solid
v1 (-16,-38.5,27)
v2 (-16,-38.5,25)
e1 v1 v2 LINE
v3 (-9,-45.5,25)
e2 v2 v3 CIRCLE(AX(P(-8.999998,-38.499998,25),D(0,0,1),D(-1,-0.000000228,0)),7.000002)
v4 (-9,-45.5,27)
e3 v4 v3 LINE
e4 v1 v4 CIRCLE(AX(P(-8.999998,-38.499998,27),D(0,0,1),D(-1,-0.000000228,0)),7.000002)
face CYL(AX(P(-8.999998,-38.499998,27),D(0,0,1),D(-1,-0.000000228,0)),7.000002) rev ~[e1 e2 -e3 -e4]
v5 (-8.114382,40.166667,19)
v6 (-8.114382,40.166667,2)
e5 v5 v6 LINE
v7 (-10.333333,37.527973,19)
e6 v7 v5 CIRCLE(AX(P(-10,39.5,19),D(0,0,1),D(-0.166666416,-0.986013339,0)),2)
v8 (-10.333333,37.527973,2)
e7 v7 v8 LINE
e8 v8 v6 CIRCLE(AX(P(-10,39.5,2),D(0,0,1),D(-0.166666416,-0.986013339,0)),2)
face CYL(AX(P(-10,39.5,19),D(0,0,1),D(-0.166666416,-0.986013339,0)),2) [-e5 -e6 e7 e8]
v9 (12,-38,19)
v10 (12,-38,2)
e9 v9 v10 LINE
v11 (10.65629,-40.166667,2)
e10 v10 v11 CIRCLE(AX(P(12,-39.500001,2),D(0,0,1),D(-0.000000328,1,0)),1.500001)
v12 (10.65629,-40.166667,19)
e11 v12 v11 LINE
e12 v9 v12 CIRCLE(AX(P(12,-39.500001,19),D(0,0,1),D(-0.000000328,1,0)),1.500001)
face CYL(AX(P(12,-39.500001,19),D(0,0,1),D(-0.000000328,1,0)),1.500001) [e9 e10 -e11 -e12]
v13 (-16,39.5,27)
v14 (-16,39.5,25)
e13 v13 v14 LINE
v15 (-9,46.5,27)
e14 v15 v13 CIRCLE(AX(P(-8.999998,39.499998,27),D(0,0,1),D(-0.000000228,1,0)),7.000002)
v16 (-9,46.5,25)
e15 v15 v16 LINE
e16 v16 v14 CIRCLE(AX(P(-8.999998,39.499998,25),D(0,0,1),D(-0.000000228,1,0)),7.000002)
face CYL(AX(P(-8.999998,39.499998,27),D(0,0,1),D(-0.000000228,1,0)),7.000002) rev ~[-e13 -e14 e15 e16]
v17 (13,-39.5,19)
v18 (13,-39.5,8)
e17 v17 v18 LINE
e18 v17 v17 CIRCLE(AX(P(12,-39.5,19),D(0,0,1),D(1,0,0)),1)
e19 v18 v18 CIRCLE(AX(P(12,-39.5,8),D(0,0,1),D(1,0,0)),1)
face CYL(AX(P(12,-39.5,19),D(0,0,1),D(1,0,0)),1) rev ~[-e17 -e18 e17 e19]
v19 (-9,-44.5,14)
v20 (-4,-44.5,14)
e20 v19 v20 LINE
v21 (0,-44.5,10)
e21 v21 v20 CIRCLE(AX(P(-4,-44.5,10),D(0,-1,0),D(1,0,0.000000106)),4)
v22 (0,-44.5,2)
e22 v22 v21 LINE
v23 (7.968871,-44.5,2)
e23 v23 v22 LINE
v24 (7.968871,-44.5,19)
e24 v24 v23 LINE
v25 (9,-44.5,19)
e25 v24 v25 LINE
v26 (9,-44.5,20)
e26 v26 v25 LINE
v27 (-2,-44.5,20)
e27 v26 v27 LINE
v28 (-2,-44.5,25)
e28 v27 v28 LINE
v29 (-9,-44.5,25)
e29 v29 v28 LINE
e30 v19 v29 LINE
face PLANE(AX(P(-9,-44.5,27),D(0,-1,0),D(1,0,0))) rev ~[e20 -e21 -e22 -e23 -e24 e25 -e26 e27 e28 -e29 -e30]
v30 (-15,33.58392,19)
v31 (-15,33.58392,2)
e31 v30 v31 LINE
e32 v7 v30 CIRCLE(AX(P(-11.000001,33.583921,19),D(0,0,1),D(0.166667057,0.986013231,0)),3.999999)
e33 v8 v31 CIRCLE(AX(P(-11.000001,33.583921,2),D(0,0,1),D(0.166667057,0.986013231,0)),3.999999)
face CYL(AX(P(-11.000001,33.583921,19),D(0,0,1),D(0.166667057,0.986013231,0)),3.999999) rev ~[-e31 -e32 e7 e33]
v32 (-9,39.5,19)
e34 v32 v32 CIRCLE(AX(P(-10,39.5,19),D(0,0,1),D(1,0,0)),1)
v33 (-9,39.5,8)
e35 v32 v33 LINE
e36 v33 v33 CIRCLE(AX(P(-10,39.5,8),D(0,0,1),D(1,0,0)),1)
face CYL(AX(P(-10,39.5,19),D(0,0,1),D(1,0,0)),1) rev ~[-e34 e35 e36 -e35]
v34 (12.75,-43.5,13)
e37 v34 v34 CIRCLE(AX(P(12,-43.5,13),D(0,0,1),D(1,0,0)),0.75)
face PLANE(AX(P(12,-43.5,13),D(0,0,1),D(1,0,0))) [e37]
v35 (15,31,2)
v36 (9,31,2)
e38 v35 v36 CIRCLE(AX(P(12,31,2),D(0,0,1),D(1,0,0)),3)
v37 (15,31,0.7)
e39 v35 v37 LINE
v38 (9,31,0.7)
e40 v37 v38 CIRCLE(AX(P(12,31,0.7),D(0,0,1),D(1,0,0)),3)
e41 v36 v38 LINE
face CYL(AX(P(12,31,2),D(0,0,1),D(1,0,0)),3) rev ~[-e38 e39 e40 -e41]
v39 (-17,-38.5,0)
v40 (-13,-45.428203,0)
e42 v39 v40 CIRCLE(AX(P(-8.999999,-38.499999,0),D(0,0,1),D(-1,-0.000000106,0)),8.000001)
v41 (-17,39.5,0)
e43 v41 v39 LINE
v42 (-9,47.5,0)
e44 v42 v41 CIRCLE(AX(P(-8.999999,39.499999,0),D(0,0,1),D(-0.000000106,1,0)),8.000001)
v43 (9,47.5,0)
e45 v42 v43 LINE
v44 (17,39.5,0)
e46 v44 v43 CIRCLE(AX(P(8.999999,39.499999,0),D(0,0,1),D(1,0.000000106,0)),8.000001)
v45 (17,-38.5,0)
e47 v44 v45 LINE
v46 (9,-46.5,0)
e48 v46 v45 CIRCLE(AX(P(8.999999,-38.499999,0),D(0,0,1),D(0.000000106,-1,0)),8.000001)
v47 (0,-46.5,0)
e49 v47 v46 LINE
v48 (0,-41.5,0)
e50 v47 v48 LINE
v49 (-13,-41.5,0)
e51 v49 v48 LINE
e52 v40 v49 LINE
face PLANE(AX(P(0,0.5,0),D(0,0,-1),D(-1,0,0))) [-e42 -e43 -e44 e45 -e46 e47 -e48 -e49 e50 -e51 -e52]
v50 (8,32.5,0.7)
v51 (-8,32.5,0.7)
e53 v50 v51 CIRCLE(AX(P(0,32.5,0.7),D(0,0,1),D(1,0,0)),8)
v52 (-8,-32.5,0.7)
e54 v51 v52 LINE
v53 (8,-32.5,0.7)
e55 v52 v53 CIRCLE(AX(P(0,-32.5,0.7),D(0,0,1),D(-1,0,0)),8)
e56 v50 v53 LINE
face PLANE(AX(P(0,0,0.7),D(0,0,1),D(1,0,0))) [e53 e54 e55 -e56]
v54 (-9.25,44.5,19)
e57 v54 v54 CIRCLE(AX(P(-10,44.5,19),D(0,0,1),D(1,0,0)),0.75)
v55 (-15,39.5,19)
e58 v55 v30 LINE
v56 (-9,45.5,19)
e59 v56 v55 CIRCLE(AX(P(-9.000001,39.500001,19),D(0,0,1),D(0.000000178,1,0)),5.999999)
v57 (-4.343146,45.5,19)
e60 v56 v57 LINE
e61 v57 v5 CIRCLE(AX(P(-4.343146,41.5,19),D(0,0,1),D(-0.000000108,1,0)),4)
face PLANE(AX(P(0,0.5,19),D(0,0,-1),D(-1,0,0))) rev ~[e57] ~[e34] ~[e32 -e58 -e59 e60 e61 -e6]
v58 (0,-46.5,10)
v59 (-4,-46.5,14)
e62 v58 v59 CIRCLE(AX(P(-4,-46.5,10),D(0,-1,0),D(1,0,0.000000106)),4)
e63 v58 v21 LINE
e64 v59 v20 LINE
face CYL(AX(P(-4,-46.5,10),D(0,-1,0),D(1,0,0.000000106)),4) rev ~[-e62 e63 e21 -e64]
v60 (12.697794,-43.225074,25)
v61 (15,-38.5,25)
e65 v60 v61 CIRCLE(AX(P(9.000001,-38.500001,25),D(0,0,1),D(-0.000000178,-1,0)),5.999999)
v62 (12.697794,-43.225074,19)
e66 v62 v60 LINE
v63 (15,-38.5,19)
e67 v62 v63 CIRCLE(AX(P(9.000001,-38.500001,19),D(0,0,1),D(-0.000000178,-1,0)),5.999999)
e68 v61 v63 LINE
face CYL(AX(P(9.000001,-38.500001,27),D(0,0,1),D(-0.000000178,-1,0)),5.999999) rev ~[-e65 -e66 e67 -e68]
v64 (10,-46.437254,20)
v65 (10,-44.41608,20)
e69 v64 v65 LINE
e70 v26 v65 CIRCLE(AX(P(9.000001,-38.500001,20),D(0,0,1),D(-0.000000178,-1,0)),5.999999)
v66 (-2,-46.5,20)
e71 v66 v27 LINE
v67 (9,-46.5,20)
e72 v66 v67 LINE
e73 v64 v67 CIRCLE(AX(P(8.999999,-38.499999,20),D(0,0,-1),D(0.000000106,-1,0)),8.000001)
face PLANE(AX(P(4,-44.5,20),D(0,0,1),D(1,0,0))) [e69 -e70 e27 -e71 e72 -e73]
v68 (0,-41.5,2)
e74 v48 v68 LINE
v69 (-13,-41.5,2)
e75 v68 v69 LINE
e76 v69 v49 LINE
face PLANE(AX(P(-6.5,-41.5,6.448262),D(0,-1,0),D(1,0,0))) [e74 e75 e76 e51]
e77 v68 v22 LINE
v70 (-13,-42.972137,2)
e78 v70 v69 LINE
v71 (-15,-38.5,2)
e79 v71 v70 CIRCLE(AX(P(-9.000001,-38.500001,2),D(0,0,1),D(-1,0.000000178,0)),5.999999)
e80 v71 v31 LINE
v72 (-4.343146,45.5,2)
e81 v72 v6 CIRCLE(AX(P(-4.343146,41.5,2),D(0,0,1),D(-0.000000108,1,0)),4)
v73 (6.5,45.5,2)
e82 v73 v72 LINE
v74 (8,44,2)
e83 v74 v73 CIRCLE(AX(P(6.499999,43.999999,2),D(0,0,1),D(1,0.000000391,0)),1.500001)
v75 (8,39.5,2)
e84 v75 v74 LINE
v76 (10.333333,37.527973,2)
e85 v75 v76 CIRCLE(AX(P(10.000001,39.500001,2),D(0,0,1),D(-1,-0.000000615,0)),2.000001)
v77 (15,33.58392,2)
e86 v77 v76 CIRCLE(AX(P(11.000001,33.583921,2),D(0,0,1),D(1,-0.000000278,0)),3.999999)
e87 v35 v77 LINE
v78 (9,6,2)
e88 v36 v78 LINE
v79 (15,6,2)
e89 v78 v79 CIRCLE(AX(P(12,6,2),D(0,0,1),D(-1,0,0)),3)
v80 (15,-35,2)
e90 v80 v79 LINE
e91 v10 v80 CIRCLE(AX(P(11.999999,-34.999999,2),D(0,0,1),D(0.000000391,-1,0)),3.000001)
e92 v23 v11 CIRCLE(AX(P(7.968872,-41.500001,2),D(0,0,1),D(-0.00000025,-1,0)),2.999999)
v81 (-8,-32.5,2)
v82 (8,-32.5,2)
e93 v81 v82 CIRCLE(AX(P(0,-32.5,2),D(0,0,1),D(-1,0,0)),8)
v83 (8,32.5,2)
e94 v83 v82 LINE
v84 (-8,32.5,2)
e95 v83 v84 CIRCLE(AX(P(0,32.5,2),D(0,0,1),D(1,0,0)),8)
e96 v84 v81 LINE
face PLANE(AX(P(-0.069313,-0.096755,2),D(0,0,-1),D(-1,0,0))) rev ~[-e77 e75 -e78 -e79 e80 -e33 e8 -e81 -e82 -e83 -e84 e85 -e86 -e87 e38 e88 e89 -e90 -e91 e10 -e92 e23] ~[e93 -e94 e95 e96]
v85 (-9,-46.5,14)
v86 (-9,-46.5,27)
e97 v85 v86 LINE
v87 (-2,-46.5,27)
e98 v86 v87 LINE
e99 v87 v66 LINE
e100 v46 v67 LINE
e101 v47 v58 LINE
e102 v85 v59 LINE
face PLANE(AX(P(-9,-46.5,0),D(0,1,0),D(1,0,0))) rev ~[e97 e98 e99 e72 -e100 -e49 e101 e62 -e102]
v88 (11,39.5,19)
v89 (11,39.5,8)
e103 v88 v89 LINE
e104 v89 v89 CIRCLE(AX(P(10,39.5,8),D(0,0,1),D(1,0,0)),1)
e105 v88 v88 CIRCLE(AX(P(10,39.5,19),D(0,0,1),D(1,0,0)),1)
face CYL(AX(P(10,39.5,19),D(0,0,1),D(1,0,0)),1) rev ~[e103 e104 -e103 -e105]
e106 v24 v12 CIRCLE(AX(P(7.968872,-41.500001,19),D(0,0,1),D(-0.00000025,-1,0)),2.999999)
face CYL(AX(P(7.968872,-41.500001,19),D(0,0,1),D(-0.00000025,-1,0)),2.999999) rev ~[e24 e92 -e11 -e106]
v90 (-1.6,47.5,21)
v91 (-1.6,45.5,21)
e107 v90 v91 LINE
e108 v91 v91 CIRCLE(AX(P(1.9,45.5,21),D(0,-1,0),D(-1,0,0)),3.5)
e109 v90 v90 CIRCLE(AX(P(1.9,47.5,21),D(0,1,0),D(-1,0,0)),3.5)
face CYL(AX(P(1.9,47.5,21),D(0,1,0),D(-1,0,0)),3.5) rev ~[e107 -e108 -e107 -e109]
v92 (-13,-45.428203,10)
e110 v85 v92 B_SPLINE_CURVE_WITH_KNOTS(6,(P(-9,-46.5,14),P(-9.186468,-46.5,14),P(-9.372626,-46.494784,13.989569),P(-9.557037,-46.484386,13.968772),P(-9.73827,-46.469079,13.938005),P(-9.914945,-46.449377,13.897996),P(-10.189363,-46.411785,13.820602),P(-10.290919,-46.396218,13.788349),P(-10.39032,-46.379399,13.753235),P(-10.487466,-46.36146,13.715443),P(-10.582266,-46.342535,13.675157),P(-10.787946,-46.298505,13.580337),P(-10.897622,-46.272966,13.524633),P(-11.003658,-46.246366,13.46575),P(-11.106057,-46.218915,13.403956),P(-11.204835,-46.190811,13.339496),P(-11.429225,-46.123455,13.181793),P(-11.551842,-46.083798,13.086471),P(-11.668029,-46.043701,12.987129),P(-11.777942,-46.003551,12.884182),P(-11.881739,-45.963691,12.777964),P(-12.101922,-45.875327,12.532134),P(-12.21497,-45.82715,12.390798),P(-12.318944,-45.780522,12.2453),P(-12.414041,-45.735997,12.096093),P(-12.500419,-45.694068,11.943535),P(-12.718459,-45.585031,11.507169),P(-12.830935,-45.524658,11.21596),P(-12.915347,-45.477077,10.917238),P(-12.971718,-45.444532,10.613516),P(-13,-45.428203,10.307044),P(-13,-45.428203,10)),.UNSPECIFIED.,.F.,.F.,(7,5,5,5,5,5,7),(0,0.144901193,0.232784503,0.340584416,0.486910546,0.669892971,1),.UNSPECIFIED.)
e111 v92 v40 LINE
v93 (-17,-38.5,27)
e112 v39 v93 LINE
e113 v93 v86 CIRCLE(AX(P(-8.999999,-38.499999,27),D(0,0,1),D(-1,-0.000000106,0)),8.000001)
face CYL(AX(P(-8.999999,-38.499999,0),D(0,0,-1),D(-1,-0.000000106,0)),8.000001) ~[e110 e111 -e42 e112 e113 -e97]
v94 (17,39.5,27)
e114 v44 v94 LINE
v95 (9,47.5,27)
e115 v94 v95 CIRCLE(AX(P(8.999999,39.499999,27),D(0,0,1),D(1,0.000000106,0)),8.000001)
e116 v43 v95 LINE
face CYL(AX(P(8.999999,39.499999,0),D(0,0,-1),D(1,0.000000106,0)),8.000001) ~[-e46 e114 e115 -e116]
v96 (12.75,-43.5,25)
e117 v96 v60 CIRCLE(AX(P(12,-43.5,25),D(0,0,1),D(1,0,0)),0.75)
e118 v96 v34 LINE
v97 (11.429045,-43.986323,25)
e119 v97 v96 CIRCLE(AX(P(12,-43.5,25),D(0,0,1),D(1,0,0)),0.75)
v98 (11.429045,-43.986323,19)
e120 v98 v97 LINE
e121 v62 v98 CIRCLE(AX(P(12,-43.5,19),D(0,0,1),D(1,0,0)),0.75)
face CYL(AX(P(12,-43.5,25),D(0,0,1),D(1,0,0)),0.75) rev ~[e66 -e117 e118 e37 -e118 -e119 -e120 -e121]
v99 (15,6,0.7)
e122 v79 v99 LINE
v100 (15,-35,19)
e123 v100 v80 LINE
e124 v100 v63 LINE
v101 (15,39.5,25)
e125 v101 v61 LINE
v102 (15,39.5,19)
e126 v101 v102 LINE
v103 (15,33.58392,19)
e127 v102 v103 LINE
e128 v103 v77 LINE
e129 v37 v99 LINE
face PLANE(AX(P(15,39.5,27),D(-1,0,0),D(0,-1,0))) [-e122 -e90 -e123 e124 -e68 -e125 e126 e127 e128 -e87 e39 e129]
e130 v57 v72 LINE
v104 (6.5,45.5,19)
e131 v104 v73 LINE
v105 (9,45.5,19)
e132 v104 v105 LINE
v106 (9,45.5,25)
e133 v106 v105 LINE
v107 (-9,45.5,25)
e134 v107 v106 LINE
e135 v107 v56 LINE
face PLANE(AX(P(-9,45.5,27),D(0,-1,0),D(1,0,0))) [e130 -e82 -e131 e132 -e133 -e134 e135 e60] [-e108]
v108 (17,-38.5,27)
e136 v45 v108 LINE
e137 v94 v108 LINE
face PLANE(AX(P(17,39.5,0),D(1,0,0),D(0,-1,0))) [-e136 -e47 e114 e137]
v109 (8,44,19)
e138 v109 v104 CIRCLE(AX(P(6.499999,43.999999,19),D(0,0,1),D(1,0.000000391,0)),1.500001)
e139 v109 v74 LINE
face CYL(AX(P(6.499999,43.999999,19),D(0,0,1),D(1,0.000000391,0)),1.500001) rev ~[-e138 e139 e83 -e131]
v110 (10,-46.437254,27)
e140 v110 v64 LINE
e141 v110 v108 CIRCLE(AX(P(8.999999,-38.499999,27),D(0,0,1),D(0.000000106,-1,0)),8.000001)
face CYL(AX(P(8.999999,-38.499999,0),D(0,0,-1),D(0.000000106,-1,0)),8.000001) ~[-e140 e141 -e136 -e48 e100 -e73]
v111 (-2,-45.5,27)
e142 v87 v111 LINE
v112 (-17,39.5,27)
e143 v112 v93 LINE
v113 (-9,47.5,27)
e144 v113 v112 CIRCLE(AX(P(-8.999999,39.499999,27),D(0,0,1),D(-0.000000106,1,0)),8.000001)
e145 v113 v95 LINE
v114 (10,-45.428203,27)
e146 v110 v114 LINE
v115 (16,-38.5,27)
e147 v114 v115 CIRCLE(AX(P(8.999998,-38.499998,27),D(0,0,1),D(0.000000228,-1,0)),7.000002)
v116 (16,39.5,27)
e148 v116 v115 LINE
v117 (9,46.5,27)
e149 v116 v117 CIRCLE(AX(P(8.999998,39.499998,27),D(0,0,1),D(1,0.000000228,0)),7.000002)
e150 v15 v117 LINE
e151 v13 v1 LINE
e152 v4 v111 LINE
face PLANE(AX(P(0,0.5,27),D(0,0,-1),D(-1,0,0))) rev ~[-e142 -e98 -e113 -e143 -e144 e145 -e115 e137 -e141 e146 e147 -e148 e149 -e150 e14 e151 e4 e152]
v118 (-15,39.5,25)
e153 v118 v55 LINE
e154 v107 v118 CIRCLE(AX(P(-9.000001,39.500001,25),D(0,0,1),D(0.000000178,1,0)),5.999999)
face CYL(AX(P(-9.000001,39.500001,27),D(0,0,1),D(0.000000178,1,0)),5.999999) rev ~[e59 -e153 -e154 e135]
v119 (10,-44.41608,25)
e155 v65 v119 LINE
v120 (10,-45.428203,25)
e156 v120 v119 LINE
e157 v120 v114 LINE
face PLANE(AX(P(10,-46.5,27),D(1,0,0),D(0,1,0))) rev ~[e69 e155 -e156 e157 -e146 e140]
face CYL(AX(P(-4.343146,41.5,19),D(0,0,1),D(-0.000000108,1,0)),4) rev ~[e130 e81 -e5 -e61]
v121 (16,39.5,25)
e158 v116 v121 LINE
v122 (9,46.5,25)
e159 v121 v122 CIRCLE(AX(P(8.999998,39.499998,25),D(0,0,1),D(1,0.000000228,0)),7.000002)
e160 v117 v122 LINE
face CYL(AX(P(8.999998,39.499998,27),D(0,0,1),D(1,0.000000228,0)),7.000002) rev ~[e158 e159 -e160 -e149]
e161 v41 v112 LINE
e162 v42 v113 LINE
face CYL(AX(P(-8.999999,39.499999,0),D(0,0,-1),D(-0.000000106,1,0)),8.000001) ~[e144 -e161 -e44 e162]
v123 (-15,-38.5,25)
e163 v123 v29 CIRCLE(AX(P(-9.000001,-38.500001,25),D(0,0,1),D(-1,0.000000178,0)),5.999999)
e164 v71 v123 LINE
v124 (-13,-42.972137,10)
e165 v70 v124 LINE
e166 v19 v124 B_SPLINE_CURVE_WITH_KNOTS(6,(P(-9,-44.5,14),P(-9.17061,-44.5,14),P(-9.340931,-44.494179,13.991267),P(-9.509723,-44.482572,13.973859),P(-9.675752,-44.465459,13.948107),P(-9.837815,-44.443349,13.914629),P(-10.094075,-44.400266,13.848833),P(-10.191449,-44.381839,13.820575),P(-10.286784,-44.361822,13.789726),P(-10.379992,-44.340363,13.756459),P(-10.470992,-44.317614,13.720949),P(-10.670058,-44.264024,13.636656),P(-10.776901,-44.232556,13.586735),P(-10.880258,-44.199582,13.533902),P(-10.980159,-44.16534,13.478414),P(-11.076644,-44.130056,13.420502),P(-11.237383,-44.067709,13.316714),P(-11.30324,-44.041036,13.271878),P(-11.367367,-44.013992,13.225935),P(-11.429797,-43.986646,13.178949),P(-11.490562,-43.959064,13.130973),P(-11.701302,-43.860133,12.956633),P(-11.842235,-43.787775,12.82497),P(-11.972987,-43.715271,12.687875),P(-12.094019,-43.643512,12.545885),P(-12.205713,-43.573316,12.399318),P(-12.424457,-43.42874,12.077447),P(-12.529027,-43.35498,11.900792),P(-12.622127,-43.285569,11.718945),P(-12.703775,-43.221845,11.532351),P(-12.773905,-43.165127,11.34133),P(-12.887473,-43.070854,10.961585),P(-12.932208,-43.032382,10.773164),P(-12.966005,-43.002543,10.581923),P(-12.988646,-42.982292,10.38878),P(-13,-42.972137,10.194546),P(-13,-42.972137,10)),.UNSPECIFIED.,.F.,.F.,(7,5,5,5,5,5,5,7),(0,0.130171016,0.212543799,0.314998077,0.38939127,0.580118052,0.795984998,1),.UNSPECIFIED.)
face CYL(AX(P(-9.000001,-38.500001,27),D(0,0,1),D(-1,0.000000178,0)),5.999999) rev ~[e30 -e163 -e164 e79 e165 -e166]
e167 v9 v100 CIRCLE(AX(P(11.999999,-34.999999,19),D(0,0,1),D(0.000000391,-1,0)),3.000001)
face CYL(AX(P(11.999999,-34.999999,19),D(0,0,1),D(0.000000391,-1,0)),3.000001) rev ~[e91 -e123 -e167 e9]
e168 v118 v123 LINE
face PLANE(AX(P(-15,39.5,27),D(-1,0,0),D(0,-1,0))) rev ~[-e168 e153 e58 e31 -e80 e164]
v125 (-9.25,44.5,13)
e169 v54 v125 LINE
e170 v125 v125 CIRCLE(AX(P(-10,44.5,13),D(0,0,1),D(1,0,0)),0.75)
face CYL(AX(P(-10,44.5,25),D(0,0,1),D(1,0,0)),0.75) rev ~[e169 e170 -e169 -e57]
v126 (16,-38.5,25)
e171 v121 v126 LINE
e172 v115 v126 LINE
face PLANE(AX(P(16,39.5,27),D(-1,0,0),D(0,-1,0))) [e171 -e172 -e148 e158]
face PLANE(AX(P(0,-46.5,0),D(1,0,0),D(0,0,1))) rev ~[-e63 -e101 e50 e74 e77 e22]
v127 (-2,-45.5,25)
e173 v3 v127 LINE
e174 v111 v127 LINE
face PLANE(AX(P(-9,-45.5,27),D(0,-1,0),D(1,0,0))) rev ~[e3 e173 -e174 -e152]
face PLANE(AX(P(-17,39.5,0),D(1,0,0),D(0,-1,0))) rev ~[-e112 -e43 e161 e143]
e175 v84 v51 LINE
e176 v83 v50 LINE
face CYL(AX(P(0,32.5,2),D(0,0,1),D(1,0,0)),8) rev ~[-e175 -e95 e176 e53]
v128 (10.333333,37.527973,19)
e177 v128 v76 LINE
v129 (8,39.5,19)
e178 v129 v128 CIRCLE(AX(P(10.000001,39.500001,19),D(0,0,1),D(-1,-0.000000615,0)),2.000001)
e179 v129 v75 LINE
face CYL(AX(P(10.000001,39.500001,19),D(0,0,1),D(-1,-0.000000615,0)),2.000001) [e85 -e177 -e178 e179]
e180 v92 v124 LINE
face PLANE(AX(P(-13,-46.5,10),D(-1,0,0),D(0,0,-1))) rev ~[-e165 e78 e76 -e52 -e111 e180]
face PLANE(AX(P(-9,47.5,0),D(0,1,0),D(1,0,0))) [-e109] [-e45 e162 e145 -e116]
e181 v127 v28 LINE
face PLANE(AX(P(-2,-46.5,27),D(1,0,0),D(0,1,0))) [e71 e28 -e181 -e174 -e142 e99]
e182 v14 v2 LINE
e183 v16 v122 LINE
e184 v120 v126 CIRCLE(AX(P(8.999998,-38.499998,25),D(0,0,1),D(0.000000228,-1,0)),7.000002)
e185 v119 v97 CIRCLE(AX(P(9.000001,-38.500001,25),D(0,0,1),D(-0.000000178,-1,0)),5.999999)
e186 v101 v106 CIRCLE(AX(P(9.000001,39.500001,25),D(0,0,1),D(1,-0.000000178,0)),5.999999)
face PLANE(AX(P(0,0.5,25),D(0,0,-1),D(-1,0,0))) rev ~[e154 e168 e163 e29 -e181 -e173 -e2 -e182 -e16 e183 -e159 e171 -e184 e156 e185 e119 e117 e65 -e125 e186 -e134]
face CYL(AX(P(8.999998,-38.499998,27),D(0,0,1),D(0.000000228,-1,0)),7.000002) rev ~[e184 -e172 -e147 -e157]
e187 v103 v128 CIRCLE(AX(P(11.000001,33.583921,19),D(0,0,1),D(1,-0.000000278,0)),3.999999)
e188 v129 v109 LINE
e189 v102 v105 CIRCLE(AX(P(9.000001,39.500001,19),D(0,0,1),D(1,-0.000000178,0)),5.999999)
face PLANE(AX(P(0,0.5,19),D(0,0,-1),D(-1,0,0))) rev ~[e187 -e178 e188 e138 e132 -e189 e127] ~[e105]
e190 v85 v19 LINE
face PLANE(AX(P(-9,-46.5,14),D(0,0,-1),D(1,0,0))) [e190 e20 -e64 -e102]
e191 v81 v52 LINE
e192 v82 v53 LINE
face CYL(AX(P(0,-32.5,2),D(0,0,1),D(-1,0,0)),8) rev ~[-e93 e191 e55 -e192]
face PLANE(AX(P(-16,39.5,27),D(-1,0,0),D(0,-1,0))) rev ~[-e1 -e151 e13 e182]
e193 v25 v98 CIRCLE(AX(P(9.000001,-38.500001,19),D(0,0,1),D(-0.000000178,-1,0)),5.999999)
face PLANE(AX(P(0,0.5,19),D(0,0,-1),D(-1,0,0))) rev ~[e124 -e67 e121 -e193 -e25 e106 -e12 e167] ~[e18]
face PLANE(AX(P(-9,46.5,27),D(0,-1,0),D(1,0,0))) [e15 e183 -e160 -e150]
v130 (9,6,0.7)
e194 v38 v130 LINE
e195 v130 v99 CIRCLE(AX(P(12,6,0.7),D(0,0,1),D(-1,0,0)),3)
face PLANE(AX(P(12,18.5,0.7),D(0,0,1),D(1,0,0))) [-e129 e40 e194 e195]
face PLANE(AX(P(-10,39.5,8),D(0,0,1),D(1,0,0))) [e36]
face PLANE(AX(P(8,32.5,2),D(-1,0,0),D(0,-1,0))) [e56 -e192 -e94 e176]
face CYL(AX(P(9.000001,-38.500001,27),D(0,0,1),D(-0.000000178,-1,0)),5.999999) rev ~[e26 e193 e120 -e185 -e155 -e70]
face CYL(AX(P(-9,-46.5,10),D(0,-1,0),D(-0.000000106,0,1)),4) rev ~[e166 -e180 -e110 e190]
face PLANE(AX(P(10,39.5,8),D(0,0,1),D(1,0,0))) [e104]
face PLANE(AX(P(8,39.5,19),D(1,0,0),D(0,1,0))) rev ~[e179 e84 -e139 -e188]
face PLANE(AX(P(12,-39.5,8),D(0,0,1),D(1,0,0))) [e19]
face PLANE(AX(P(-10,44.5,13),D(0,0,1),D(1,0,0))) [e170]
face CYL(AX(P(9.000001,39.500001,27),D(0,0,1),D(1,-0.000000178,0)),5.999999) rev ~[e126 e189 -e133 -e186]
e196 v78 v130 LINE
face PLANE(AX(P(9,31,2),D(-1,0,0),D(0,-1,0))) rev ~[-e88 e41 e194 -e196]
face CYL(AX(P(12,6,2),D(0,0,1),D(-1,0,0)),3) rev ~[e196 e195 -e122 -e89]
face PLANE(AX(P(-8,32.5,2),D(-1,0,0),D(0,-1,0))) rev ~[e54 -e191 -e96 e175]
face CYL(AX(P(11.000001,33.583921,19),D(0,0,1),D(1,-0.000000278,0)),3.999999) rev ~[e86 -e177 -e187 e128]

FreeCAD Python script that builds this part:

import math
import FreeCAD as App
import Part
import Sketcher

V = App.Vector
Q = App.Units.Quantity


def add_polygon(sketch, points):
    """Adds a closed chain of lines whose ends are joined by coincident constraints."""
    first, n = sketch.GeometryCount, len(points)
    for a, b in zip(points, points[1:] + points[:1]):
        sketch.addGeometry(Part.LineSegment(App.Vector(*a, 0), App.Vector(*b, 0)), False)
    for i in range(n):
        sketch.addConstraint(Sketcher.Constraint("Coincident", first + i, 2, first + (i + 1) % n, 1))

doc = App.newDocument("Part")
body = doc.addObject("PartDesign::Body", "Body")

# Sketch on XY plane
sketch1 = doc.addObject("Sketcher::SketchObject", "Sketch")
body.addObject(sketch1)
sketch1.AttachmentSupport = (doc.XY_Plane, [""])
sketch1.MapMode = "FlatFace"
sketch1.addGeometry(Part.LineSegment(V(9, 48, 0), V(-9, 48, 0)), False)
sketch1.addGeometry(Part.ArcOfCircle(Part.Circle(V(-9, 39, 0), V(0, 0, 1), 8), math.radians(90), math.radians(180)), False)
sketch1.addGeometry(Part.LineSegment(V(-17, 40, 0), V(-17, -38, 0)), False)
sketch1.addGeometry(Part.ArcOfCircle(Part.Circle(V(-9, -38, 0), V(0, 0, 1), 8), math.radians(-180), math.radians(-90)), False)
sketch1.addGeometry(Part.LineSegment(V(-9, -46, 0), V(9, -46, 0)), False)
sketch1.addGeometry(Part.ArcOfCircle(Part.Circle(V(9, -38, 0), V(0, 0, 1), 8), math.radians(-90), math.radians(0)), False)
sketch1.addGeometry(Part.LineSegment(V(17, -38, 0), V(17, 40, 0)), False)
sketch1.addGeometry(Part.ArcOfCircle(Part.Circle(V(9, 39, 0), V(0, 0, 1), 8), math.radians(0), math.radians(90)), False)
sketch1.addConstraint(Sketcher.Constraint("Tangent", 0, 2, 1, 1))
sketch1.addConstraint(Sketcher.Constraint("Tangent", 1, 2, 2, 1))
sketch1.addConstraint(Sketcher.Constraint("Tangent", 2, 2, 3, 1))
sketch1.addConstraint(Sketcher.Constraint("Tangent", 3, 2, 4, 1))
sketch1.addConstraint(Sketcher.Constraint("Tangent", 4, 2, 5, 1))
sketch1.addConstraint(Sketcher.Constraint("Tangent", 5, 2, 6, 1))
sketch1.addConstraint(Sketcher.Constraint("Tangent", 6, 2, 7, 1))
sketch1.addConstraint(Sketcher.Constraint("Tangent", 7, 2, 0, 1))
sketch1.addConstraint(Sketcher.Constraint("Horizontal", 0))
sketch1.addConstraint(Sketcher.Constraint("Vertical", 2))
sketch1.addConstraint(Sketcher.Constraint("Horizontal", 4))
sketch1.addConstraint(Sketcher.Constraint("Vertical", 6))
sketch1.addConstraint(Sketcher.Constraint("Equal", 1, 3))
sketch1.addConstraint(Sketcher.Constraint("Equal", 3, 5))
sketch1.addConstraint(Sketcher.Constraint("Equal", 5, 7))
sketch1.addConstraint(Sketcher.Constraint("Radius", 1, Q("8.000001 mm")))
sketch1.addConstraint(Sketcher.Constraint("DistanceX", 0, 2, 0, 1, Q("18 mm")))
sketch1.addConstraint(Sketcher.Constraint("DistanceY", 2, 2, 2, 1, Q("78 mm")))
sketch1.addConstraint(Sketcher.Constraint("DistanceX", 1, 3, -1, 1, Q("8.999999 mm")))
sketch1.addConstraint(Sketcher.Constraint("DistanceY", -1, 1, 1, 3, Q("39.499999 mm")))
pad1 = doc.addObject("PartDesign::Pad", "Pad")
body.addObject(pad1)
pad1.Profile = sketch1
pad1.Length = 27

# Sketch on XY plane
sketch2 = doc.addObject("Sketcher::SketchObject", "Sketch001")
body.addObject(sketch2)
sketch2.AttachmentSupport = (doc.XY_Plane, [""])
sketch2.MapMode = "FlatFace"
sketch2.AttachmentOffset = App.Placement(V(0, 0, 27), App.Rotation())
sketch2.addGeometry(Part.LineSegment(V(9, 46, 0), V(-9, 46, 0)), False)
sketch2.addGeometry(Part.ArcOfCircle(Part.Circle(V(-9, 40, 0), V(0, 0, 1), 6), math.radians(90), math.radians(180)), False)
sketch2.addGeometry(Part.LineSegment(V(-15, 40, 0), V(-15, -38, 0)), False)
sketch2.addGeometry(Part.ArcOfCircle(Part.Circle(V(-9, -39, 0), V(0, 0, 1), 6), math.radians(180), math.radians(270)), False)
sketch2.addGeometry(Part.LineSegment(V(-9, -44, 0), V(9, -44, 0)), False)
sketch2.addGeometry(Part.ArcOfCircle(Part.Circle(V(9, -39, 0), V(0, 0, 1), 6), math.radians(-90), math.radians(0)), False)
sketch2.addGeometry(Part.LineSegment(V(15, -38, 0), V(15, 40, 0)), False)
sketch2.addGeometry(Part.ArcOfCircle(Part.Circle(V(9, 40, 0), V(0, 0, 1), 6), math.radians(0), math.radians(90)), False)
sketch2.addConstraint(Sketcher.Constraint("Tangent", 0, 2, 1, 1))
sketch2.addConstraint(Sketcher.Constraint("Tangent", 1, 2, 2, 1))
sketch2.addConstraint(Sketcher.Constraint("Tangent", 2, 2, 3, 1))
sketch2.addConstraint(Sketcher.Constraint("Tangent", 3, 2, 4, 1))
sketch2.addConstraint(Sketcher.Constraint("Tangent", 4, 2, 5, 1))
sketch2.addConstraint(Sketcher.Constraint("Tangent", 5, 2, 6, 1))
sketch2.addConstraint(Sketcher.Constraint("Tangent", 6, 2, 7, 1))
sketch2.addConstraint(Sketcher.Constraint("Tangent", 7, 2, 0, 1))
sketch2.addConstraint(Sketcher.Constraint("Horizontal", 0))
sketch2.addConstraint(Sketcher.Constraint("Vertical", 2))
sketch2.addConstraint(Sketcher.Constraint("Horizontal", 4))
sketch2.addConstraint(Sketcher.Constraint("Vertical", 6))
sketch2.addConstraint(Sketcher.Constraint("Equal", 1, 3))
sketch2.addConstraint(Sketcher.Constraint("Equal", 3, 5))
sketch2.addConstraint(Sketcher.Constraint("Equal", 5, 7))
sketch2.addConstraint(Sketcher.Constraint("Radius", 1, Q("5.999999 mm")))
sketch2.addConstraint(Sketcher.Constraint("DistanceX", 0, 2, 0, 1, Q("18 mm")))
sketch2.addConstraint(Sketcher.Constraint("DistanceY", 2, 2, 2, 1, Q("78 mm")))
sketch2.addConstraint(Sketcher.Constraint("DistanceX", 1, 3, -1, 1, Q("9.000001 mm")))
sketch2.addConstraint(Sketcher.Constraint("DistanceY", -1, 1, 1, 3, Q("39.500001 mm")))
pocket1 = doc.addObject("PartDesign::Pocket", "Pocket")
body.addObject(pocket1)
pocket1.Profile = sketch2
pocket1.Length = 8

# Sketch on XZ plane
sketch3 = doc.addObject("Sketcher::SketchObject", "Sketch002")
body.addObject(sketch3)
sketch3.AttachmentSupport = (doc.XZ_Plane, [""])
sketch3.MapMode = "FlatFace"
sketch3.AttachmentOffset = App.Placement(V(0, 0, -47.5), App.Rotation())
sketch3.addGeometry(Part.Circle(V(1.9, 21, 0), V(0, 0, 1), 3.5), False)
sketch3.addConstraint(Sketcher.Constraint("Diameter", 0, Q("7 mm")))
sketch3.addConstraint(Sketcher.Constraint("DistanceY", -1, 1, 0, 3, Q("21 mm")))
sketch3.addConstraint(Sketcher.Constraint("DistanceX", -1, 1, 0, 3, Q("1.9 mm")))
pocket2 = doc.addObject("PartDesign::Pocket", "Pocket001")
body.addObject(pocket2)
pocket2.Profile = sketch3
pocket2.Length = 5
pocket2.Reversed = True

# Sketch on XY plane
sketch4 = doc.addObject("Sketcher::SketchObject", "Sketch003")
body.addObject(sketch4)
sketch4.AttachmentSupport = (doc.XY_Plane, [""])
sketch4.MapMode = "FlatFace"
sketch4.AttachmentOffset = App.Placement(V(0, 0, 19), App.Rotation())
sketch4.addGeometry(Part.ArcOfCircle(Part.Circle(V(10, 39.5, 0), V(0, 0, 1), 2), math.radians(-180), math.radians(-80)), False)
sketch4.addGeometry(Part.LineSegment(V(8, 39.5, 0), V(8, 44, 0)), False)
sketch4.addGeometry(Part.ArcOfCircle(Part.Circle(V(6.5, 44, 0), V(0, 0, 1), 1.5), math.radians(0), math.radians(90)), False)
sketch4.addGeometry(Part.LineSegment(V(6.5, 45.5, 0), V(-4.3, 45.5, 0)), False)
sketch4.addGeometry(Part.ArcOfCircle(Part.Circle(V(-4.3, 41.5, 0), V(0, 0, 1), 4), math.radians(90), math.radians(199)), False)
sketch4.addGeometry(Part.ArcOfCircle(Part.Circle(V(-10, 39.5, 0), V(0, 0, 1), 2), math.radians(-100), math.radians(19)), False)
sketch4.addGeometry(Part.ArcOfCircle(Part.Circle(V(-11, 33.6, 0), V(0, 0, 1), 4), math.radians(80), math.radians(180)), False)
sketch4.addGeometry(Part.LineSegment(V(-15, 33.6, 0), V(-15, -38.5, 0)), False)
sketch4.addGeometry(Part.ArcOfCircle(Part.Circle(V(-9, -38.5, 0), V(0, 0, 1), 6), math.radians(180), math.radians(270)), False)
sketch4.addGeometry(Part.LineSegment(V(-9, -44.5, 0), V(8, -44.5, 0)), False)
sketch4.addGeometry(Part.ArcOfCircle(Part.Circle(V(8, -41.5, 0), V(0, 0, 1), 3), math.radians(-90), math.radians(26)), False)
sketch4.addGeometry(Part.ArcOfCircle(Part.Circle(V(12, -39.5, 0), V(0, 0, 1), 1.5), math.radians(90), math.radians(206)), False)
sketch4.addGeometry(Part.ArcOfCircle(Part.Circle(V(12, -35, 0), V(0, 0, 1), 3), math.radians(-90), math.radians(0)), False)
sketch4.addGeometry(Part.LineSegment(V(15, -35, 0), V(15, 33.6, 0)), False)
sketch4.addGeometry(Part.ArcOfCircle(Part.Circle(V(11, 33.6, 0), V(0, 0, 1), 4), math.radians(0), math.radians(100)), False)
sketch4.addConstraint(Sketcher.Constraint("Tangent", 0, 1, 1, 1))
sketch4.addConstraint(Sketcher.Constraint("Tangent", 1, 2, 2, 1))
sketch4.addConstraint(Sketcher.Constraint("Tangent", 2, 2, 3, 1))
sketch4.addConstraint(Sketcher.Constraint("Tangent", 3, 2, 4, 1))
sketch4.addConstraint(Sketcher.Constraint("Tangent", 4, 2, 5, 2))
sketch4.addConstraint(Sketcher.Constraint("Tangent", 5, 1, 6, 1))
sketch4.addConstraint(Sketcher.Constraint("Tangent", 6, 2, 7, 1))
sketch4.addConstraint(Sketcher.Constraint("Tangent", 7, 2, 8, 1))
sketch4.addConstraint(Sketcher.Constraint("Tangent", 8, 2, 9, 1))
sketch4.addConstraint(Sketcher.Constraint("Tangent", 9, 2, 10, 1))
sketch4.addConstraint(Sketcher.Constraint("Tangent", 10, 2, 11, 2))
sketch4.addConstraint(Sketcher.Constraint("Tangent", 11, 1, 12, 1))
sketch4.addConstraint(Sketcher.Constraint("Tangent", 12, 2, 13, 1))
sketch4.addConstraint(Sketcher.Constraint("Tangent", 13, 2, 14, 1))
sketch4.addConstraint(Sketcher.Constraint("Tangent", 14, 2, 0, 2))
sketch4.addConstraint(Sketcher.Constraint("Vertical", 1))
sketch4.addConstraint(Sketcher.Constraint("Horizontal", 3))
sketch4.addConstraint(Sketcher.Constraint("Vertical", 7))
sketch4.addConstraint(Sketcher.Constraint("Horizontal", 9))
sketch4.addConstraint(Sketcher.Constraint("Vertical", 13))
sketch4.addConstraint(Sketcher.Constraint("Equal", 0, 5))
sketch4.addConstraint(Sketcher.Constraint("Equal", 4, 6))
sketch4.addConstraint(Sketcher.Constraint("Equal", 2, 11))
sketch4.addConstraint(Sketcher.Constraint("Equal", 10, 12))
sketch4.addConstraint(Sketcher.Constraint("Equal", 6, 14))
sketch4.addConstraint(Sketcher.Constraint("Symmetric", 0, 3, 5, 3, -2))
sketch4.addConstraint(Sketcher.Constraint("Horizontal", 6, 3, 14, 3))
sketch4.addConstraint(Sketcher.Constraint("Vertical", 11, 3, 12, 3))
sketch4.addConstraint(Sketcher.Constraint("Radius", 0, Q("2.000001 mm")))
sketch4.addConstraint(Sketcher.Constraint("Radius", 4, Q("4 mm")))
sketch4.addConstraint(Sketcher.Constraint("Radius", 8, Q("5.999999 mm")))
sketch4.addConstraint(Sketcher.Constraint("Radius", 10, Q("2.999999 mm")))
sketch4.addConstraint(Sketcher.Constraint("Radius", 2, Q("1.500001 mm")))
sketch4.addConstraint(Sketcher.Constraint("DistanceY", 1, 1, 1, 2, Q("4.5 mm")))
sketch4.addConstraint(Sketcher.Constraint("DistanceX", -1, 1, 0, 3, Q("10.000001 mm")))
sketch4.addConstraint(Sketcher.Constraint("DistanceY", -1, 1, 2, 3, Q("43.999999 mm")))
sketch4.addConstraint(Sketcher.Constraint("DistanceX", 6, 3, -1, 1, Q("11.000001 mm")))
sketch4.addConstraint(Sketcher.Constraint("DistanceY", 12, 3, -1, 1, Q("34.999999 mm")))
sketch4.addConstraint(Sketcher.Constraint("DistanceY", 8, 3, 5, 3, Q("78.000001 mm")))
pocket3 = doc.addObject("PartDesign::Pocket", "Pocket002")
body.addObject(pocket3)
pocket3.Profile = sketch4
pocket3.Length = 17

# Sketch on XY plane
sketch5 = doc.addObject("Sketcher::SketchObject", "Sketch004")
body.addObject(sketch5)
sketch5.AttachmentSupport = (doc.XY_Plane, [""])
sketch5.MapMode = "FlatFace"
sketch5.AttachmentOffset = App.Placement(V(0, 0, 19), App.Rotation())
sketch5.addGeometry(Part.Circle(V(-10, 39.5, 0), V(0, 0, 1), 1), False)
sketch5.addGeometry(Part.Circle(V(10, 39.5, 0), V(0, 0, 1), 1), False)
sketch5.addGeometry(Part.Circle(V(12, -39.5, 0), V(0, 0, 1), 1), False)
sketch5.addConstraint(Sketcher.Constraint("Equal", 0, 1))
sketch5.addConstraint(Sketcher.Constraint("Equal", 1, 2))
sketch5.addConstraint(Sketcher.Constraint("Symmetric", 0, 3, 1, 3, -2))
sketch5.addConstraint(Sketcher.Constraint("Diameter", 0, Q("2 mm")))
sketch5.addConstraint(Sketcher.Constraint("DistanceX", 0, 3, -1, 1, Q("10 mm")))
sketch5.addConstraint(Sketcher.Constraint("DistanceX", -1, 1, 2, 3, Q("12 mm")))
sketch5.addConstraint(Sketcher.Constraint("DistanceY", 2, 3, 1, 3, Q("79 mm")))
sketch5.addConstraint(Sketcher.Constraint("DistanceY", -1, 1, 0, 3, Q("39.5 mm")))
pocket4 = doc.addObject("PartDesign::Pocket", "Pocket003")
body.addObject(pocket4)
pocket4.Profile = sketch5
pocket4.Length = 11

# Sketch on XY plane
sketch6 = doc.addObject("Sketcher::SketchObject", "Sketch005")
body.addObject(sketch6)
sketch6.AttachmentSupport = (doc.XY_Plane, [""])
sketch6.MapMode = "FlatFace"
sketch6.AttachmentOffset = App.Placement(V(0, 0, 27), App.Rotation())
add_polygon(sketch6, [(-2, -42.5), (-2, -46.5), (10, -46.5), (10, -42.5)])  # lines 0-3
sketch6.addConstraint(Sketcher.Constraint("Vertical", 0))
sketch6.addConstraint(Sketcher.Constraint("Horizontal", 1))
sketch6.addConstraint(Sketcher.Constraint("Vertical", 2))
sketch6.addConstraint(Sketcher.Constraint("Horizontal", 3))
sketch6.addConstraint(Sketcher.Constraint("DistanceX", 1, 1, 1, 2, Q("12 mm")))
sketch6.addConstraint(Sketcher.Constraint("DistanceY", 0, 2, 0, 1, Q("4 mm")))
sketch6.addConstraint(Sketcher.Constraint("DistanceX", 0, 2, -1, 1, Q("2 mm")))
sketch6.addConstraint(Sketcher.Constraint("DistanceY", 0, 2, -1, 1, Q("46.5 mm")))
pocket5 = doc.addObject("PartDesign::Pocket", "Pocket004")
body.addObject(pocket5)
pocket5.Profile = sketch6
pocket5.Length = 7

# Sketch on XY plane
sketch7 = doc.addObject("Sketcher::SketchObject", "Sketch006")
body.addObject(sketch7)
sketch7.AttachmentSupport = (doc.XY_Plane, [""])
sketch7.MapMode = "FlatFace"
sketch7.AttachmentOffset = App.Placement(V(0, 0, 2), App.Rotation())
sketch7.addGeometry(Part.ArcOfCircle(Part.Circle(V(0, 32.5, 0), V(0, 0, 1), 8), math.radians(0), math.radians(180)), False)
sketch7.addGeometry(Part.LineSegment(V(-8, 32.5, 0), V(-8, -32.5, 0)), False)
sketch7.addGeometry(Part.ArcOfCircle(Part.Circle(V(0, -32.5, 0), V(0, 0, 1), 8), math.radians(180), math.radians(360)), False)
sketch7.addGeometry(Part.LineSegment(V(8, -32.5, 0), V(8, 32.5, 0)), False)
sketch7.addGeometry(Part.ArcOfCircle(Part.Circle(V(12, 31, 0), V(0, 0, 1), 3), math.radians(0), math.radians(180)), False)
sketch7.addGeometry(Part.LineSegment(V(9, 31, 0), V(9, 6, 0)), False)
sketch7.addGeometry(Part.ArcOfCircle(Part.Circle(V(12, 6, 0), V(0, 0, 1), 3), math.radians(180), math.radians(360)), False)
sketch7.addGeometry(Part.LineSegment(V(15, 6, 0), V(15, 31, 0)), False)
sketch7.addConstraint(Sketcher.Constraint("Tangent", 0, 2, 1, 1))
sketch7.addConstraint(Sketcher.Constraint("Tangent", 1, 2, 2, 1))
sketch7.addConstraint(Sketcher.Constraint("Tangent", 2, 2, 3, 1))
sketch7.addConstraint(Sketcher.Constraint("Tangent", 3, 2, 0, 1))
sketch7.addConstraint(Sketcher.Constraint("Tangent", 4, 2, 5, 1))
sketch7.addConstraint(Sketcher.Constraint("Tangent", 5, 2, 6, 1))
sketch7.addConstraint(Sketcher.Constraint("Tangent", 6, 2, 7, 1))
sketch7.addConstraint(Sketcher.Constraint("Tangent", 7, 2, 4, 1))
sketch7.addConstraint(Sketcher.Constraint("Vertical", 1))
sketch7.addConstraint(Sketcher.Constraint("Vertical", 3))
sketch7.addConstraint(Sketcher.Constraint("Vertical", 5))
sketch7.addConstraint(Sketcher.Constraint("Vertical", 7))
sketch7.addConstraint(Sketcher.Constraint("Symmetric", 0, 3, 2, 3, -1, 1))
sketch7.addConstraint(Sketcher.Constraint("Radius", 0, Q("8 mm")))
sketch7.addConstraint(Sketcher.Constraint("Radius", 4, Q("3 mm")))
sketch7.addConstraint(Sketcher.Constraint("DistanceY", 1, 2, 1, 1, Q("65 mm")))
sketch7.addConstraint(Sketcher.Constraint("DistanceY", 5, 2, 5, 1, Q("25 mm")))
sketch7.addConstraint(Sketcher.Constraint("DistanceX", -1, 1, 4, 3, Q("12 mm")))
sketch7.addConstraint(Sketcher.Constraint("DistanceY", -1, 1, 4, 3, Q("31 mm")))
pocket6 = doc.addObject("PartDesign::Pocket", "Pocket005")
body.addObject(pocket6)
pocket6.Profile = sketch7
pocket6.Length = 1.3

# Sketch on XY plane
sketch8 = doc.addObject("Sketcher::SketchObject", "Sketch007")
body.addObject(sketch8)
sketch8.AttachmentSupport = (doc.XY_Plane, [""])
sketch8.MapMode = "FlatFace"
sketch8.AttachmentOffset = App.Placement(V(0, 0, 27), App.Rotation())
sketch8.addGeometry(Part.LineSegment(V(9, 46, 0), V(-9, 46, 0)), False)
sketch8.addGeometry(Part.ArcOfCircle(Part.Circle(V(-9, 39, 0), V(0, 0, 1), 7), math.radians(90), math.radians(180)), False)
sketch8.addGeometry(Part.LineSegment(V(-16, 40, 0), V(-16, -38, 0)), False)
sketch8.addGeometry(Part.ArcOfCircle(Part.Circle(V(-9, -38, 0), V(0, 0, 1), 7), math.radians(-180), math.radians(-90)), False)
sketch8.addGeometry(Part.LineSegment(V(-9, -46, 0), V(9, -46, 0)), False)
sketch8.addGeometry(Part.ArcOfCircle(Part.Circle(V(9, -38, 0), V(0, 0, 1), 7), math.radians(-90), math.radians(0)), False)
sketch8.addGeometry(Part.LineSegment(V(16, -38, 0), V(16, 40, 0)), False)
sketch8.addGeometry(Part.ArcOfCircle(Part.Circle(V(9, 39, 0), V(0, 0, 1), 7), math.radians(0), math.radians(90)), False)
sketch8.addConstraint(Sketcher.Constraint("Tangent", 0, 2, 1, 1))
sketch8.addConstraint(Sketcher.Constraint("Tangent", 1, 2, 2, 1))
sketch8.addConstraint(Sketcher.Constraint("Tangent", 2, 2, 3, 1))
sketch8.addConstraint(Sketcher.Constraint("Tangent", 3, 2, 4, 1))
sketch8.addConstraint(Sketcher.Constraint("Tangent", 4, 2, 5, 1))
sketch8.addConstraint(Sketcher.Constraint("Tangent", 5, 2, 6, 1))
sketch8.addConstraint(Sketcher.Constraint("Tangent", 6, 2, 7, 1))
sketch8.addConstraint(Sketcher.Constraint("Tangent", 7, 2, 0, 1))
sketch8.addConstraint(Sketcher.Constraint("Horizontal", 0))
sketch8.addConstraint(Sketcher.Constraint("Vertical", 2))
sketch8.addConstraint(Sketcher.Constraint("Horizontal", 4))
sketch8.addConstraint(Sketcher.Constraint("Vertical", 6))
sketch8.addConstraint(Sketcher.Constraint("Equal", 1, 3))
sketch8.addConstraint(Sketcher.Constraint("Equal", 3, 5))
sketch8.addConstraint(Sketcher.Constraint("Equal", 5, 7))
sketch8.addConstraint(Sketcher.Constraint("Radius", 1, Q("7.000002 mm")))
sketch8.addConstraint(Sketcher.Constraint("DistanceX", 0, 2, 0, 1, Q("18 mm")))
sketch8.addConstraint(Sketcher.Constraint("DistanceY", 2, 2, 2, 1, Q("78 mm")))
sketch8.addConstraint(Sketcher.Constraint("DistanceX", 1, 3, -1, 1, Q("8.999998 mm")))
sketch8.addConstraint(Sketcher.Constraint("DistanceY", -1, 1, 1, 3, Q("39.499998 mm")))
pocket7 = doc.addObject("PartDesign::Pocket", "Pocket006")
body.addObject(pocket7)
pocket7.Profile = sketch8
pocket7.Length = 2

# Sketch on XY plane
sketch9 = doc.addObject("Sketcher::SketchObject", "Sketch008")
body.addObject(sketch9)
sketch9.AttachmentSupport = (doc.XY_Plane, [""])
sketch9.MapMode = "FlatFace"
sketch9.AttachmentOffset = App.Placement(V(0, 0, 25), App.Rotation())
sketch9.addGeometry(Part.Circle(V(-10, 44.5, 0), V(0, 0, 1), 0.8), False)
sketch9.addGeometry(Part.Circle(V(12, -43.5, 0), V(0, 0, 1), 0.8), False)
sketch9.addConstraint(Sketcher.Constraint("Equal", 0, 1))
sketch9.addConstraint(Sketcher.Constraint("Diameter", 0, Q("1.5 mm")))
sketch9.addConstraint(Sketcher.Constraint("DistanceX", 0, 3, -1, 1, Q("10 mm")))
sketch9.addConstraint(Sketcher.Constraint("DistanceX", -1, 1, 1, 3, Q("12 mm")))
sketch9.addConstraint(Sketcher.Constraint("DistanceY", 1, 3, 0, 3, Q("88 mm")))
sketch9.addConstraint(Sketcher.Constraint("DistanceY", -1, 1, 0, 3, Q("44.5 mm")))
pocket8 = doc.addObject("PartDesign::Pocket", "Pocket007")
body.addObject(pocket8)
pocket8.Profile = sketch9
pocket8.Length = 12

# Sketch on XZ plane
sketch10 = doc.addObject("Sketcher::SketchObject", "Sketch009")
body.addObject(sketch10)
sketch10.AttachmentSupport = (doc.XZ_Plane, [""])
sketch10.MapMode = "FlatFace"
sketch10.AttachmentOffset = App.Placement(V(0, 0, 46.5), App.Rotation())
sketch10.addGeometry(Part.LineSegment(V(0, 0, 0), V(0, 10, 0)), False)
sketch10.addGeometry(Part.ArcOfCircle(Part.Circle(V(-4, 10, 0), V(0, 0, 1), 4), math.radians(0), math.radians(90)), False)
sketch10.addGeometry(Part.LineSegment(V(-4, 14, 0), V(-9, 14, 0)), False)
sketch10.addGeometry(Part.ArcOfCircle(Part.Circle(V(-9, 10, 0), V(0, 0, 1), 4), math.radians(90), math.radians(180)), False)
sketch10.addGeometry(Part.LineSegment(V(-13, 10, 0), V(-13, 0, 0)), False)
sketch10.addGeometry(Part.LineSegment(V(-13, 0, 0), V(0, 0, 0)), False)
sketch10.addConstraint(Sketcher.Constraint("Tangent", 0, 2, 1, 1))
sketch10.addConstraint(Sketcher.Constraint("Tangent", 1, 2, 2, 1))
sketch10.addConstraint(Sketcher.Constraint("Tangent", 2, 2, 3, 1))
sketch10.addConstraint(Sketcher.Constraint("Tangent", 3, 2, 4, 1))
sketch10.addConstraint(Sketcher.Constraint("Coincident", 4, 2, 5, 1))
sketch10.addConstraint(Sketcher.Constraint("Coincident", 5, 2, 0, 1))
sketch10.addConstraint(Sketcher.Constraint("Vertical", 0))
sketch10.addConstraint(Sketcher.Constraint("Horizontal", 2))
sketch10.addConstraint(Sketcher.Constraint("Vertical", 4))
sketch10.addConstraint(Sketcher.Constraint("Horizontal", 5))
sketch10.addConstraint(Sketcher.Constraint("Coincident", 5, 2, -1, 1))
sketch10.addConstraint(Sketcher.Constraint("Equal", 1, 3))
sketch10.addConstraint(Sketcher.Constraint("Radius", 1, Q("4 mm")))
sketch10.addConstraint(Sketcher.Constraint("DistanceX", 2, 2, 2, 1, Q("5 mm")))
sketch10.addConstraint(Sketcher.Constraint("DistanceY", 0, 1, 0, 2, Q("10 mm")))
pocket9 = doc.addObject("PartDesign::Pocket", "Pocket008")
body.addObject(pocket9)
pocket9.Profile = sketch10
pocket9.Length = 5

doc.recompute()
